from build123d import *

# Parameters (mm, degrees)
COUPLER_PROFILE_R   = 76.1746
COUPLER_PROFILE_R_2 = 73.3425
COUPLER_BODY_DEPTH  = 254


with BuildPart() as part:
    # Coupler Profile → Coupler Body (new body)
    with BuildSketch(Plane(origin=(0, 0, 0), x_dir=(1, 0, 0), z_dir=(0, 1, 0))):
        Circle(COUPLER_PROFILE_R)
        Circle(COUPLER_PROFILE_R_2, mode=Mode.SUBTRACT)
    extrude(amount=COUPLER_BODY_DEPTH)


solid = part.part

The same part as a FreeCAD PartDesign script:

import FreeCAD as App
import Part
import Sketcher
from FreeCAD import Vector
Q = App.Units.Quantity

doc = App.newDocument("Part")
body = doc.addObject("PartDesign::Body", "Body")

sketch1 = body.newObject("Sketcher::SketchObject", "Sketch")
sketch1.AttachmentSupport = (doc.getObject("XZ_Plane"), [""])
sketch1.MapMode = "FlatFace"
sketch1.addGeometry(Part.Circle(Vector(0, 0, 0), Vector(0, 0, 1), 76), False)
sketch1.addGeometry(Part.Circle(Vector(0, 0, 0), Vector(0, 0, 1), 73), False)
sketch1.addConstraint(Sketcher.Constraint("Coincident", 0, 3, -1, 1))
sketch1.addConstraint(Sketcher.Constraint("Coincident", 1, 3, -1, 1))
sketch1.addConstraint(Sketcher.Constraint("Diameter", 0, Q("5.998 in")))
sketch1.addConstraint(Sketcher.Constraint("Diameter", 1, Q("5.775 in")))
pad1 = body.newObject("PartDesign::Pad", "Pad")
pad1.Profile = sketch1
pad1.Length = Q("10 in")
pad1.Reversed = True

doc.recompute()
